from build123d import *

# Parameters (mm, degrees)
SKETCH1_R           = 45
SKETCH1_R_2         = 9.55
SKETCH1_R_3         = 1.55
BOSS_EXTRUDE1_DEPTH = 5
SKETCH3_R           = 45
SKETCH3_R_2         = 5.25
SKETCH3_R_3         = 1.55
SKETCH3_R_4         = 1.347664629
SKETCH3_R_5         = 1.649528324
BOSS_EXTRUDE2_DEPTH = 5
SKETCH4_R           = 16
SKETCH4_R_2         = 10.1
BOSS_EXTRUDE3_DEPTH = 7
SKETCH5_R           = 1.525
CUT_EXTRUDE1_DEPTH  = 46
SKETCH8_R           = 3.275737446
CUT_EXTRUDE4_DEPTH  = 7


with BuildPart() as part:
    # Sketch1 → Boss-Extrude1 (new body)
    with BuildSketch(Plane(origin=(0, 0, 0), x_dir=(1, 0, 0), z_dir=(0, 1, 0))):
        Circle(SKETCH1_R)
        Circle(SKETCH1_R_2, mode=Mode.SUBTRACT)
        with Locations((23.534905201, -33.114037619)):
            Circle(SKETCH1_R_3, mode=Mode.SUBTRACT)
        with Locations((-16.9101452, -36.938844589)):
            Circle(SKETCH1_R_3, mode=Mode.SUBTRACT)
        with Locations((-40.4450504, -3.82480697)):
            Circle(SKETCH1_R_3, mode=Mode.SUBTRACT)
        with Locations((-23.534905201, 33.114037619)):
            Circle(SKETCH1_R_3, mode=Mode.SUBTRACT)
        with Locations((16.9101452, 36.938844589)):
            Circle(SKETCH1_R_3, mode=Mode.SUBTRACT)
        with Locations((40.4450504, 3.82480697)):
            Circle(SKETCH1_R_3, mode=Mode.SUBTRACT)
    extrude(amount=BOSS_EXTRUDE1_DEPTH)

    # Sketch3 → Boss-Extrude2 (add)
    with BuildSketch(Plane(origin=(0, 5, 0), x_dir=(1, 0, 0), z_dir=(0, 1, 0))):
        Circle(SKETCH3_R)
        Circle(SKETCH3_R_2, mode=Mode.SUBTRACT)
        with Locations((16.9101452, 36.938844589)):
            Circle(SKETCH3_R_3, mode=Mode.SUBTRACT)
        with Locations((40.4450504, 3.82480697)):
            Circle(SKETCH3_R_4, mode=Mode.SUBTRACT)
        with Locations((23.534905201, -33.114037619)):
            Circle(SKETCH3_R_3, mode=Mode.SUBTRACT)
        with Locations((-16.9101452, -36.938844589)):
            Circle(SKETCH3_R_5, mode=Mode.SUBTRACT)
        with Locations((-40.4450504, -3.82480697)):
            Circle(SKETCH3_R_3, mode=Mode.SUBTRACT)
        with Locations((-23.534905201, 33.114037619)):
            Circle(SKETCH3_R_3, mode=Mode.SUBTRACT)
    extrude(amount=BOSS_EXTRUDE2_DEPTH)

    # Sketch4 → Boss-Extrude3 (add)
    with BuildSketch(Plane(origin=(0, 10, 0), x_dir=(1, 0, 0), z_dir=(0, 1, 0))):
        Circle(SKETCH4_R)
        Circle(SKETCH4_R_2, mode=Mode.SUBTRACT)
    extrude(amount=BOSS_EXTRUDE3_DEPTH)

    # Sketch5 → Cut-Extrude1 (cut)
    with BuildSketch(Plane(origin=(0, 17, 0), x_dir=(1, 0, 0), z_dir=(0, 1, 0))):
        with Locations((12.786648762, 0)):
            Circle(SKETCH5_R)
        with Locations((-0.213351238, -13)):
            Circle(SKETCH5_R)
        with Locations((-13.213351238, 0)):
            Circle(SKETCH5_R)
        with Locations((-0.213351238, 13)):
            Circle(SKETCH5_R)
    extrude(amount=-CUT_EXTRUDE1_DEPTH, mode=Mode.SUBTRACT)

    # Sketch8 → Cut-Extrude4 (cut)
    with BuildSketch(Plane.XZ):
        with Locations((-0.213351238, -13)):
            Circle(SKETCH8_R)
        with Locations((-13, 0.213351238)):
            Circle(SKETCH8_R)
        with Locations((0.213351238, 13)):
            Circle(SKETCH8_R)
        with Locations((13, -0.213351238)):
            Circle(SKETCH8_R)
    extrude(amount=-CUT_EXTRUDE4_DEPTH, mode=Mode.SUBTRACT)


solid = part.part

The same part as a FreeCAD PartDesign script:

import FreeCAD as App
import Part
import Sketcher

V = App.Vector

doc = App.newDocument("Part")
body = doc.addObject("PartDesign::Body", "Body")

# Sketch on XZ plane
sketch1 = doc.addObject("Sketcher::SketchObject", "Sketch")
body.addObject(sketch1)
sketch1.AttachmentSupport = (doc.XZ_Plane, [""])
sketch1.MapMode = "FlatFace"
sketch1.addGeometry([
    Part.Circle(V(0, 0, 0), V(0, 0, 1), 45),  # 0
    Part.Circle(V(-16.9, 36.9, 0), V(0, 0, 1), 1.6),  # 1
    Part.Circle(V(-40.4, 3.8, 0), V(0, 0, 1), 1.6),  # 2
    Part.Circle(V(23.5, 33.1, 0), V(0, 0, 1), 1.6),  # 3
    Part.Circle(V(-23.5, -33.1, 0), V(0, 0, 1), 1.6),  # 4
    Part.Circle(V(0, 0, 0), V(0, 0, 1), 9.6),  # 5
    Part.Circle(V(40.4, -3.8, 0), V(0, 0, 1), 1.6),  # 6
    Part.Circle(V(16.9, -36.9, 0), V(0, 0, 1), 1.6),  # 7
], False)
sketch1.addConstraint([
    Sketcher.Constraint("Coincident", 0, 3, -1, 1),
    Sketcher.Constraint("Coincident", 5, 3, -1, 1),
    Sketcher.Constraint("Equal", 1, 2),
    Sketcher.Constraint("Equal", 2, 3),
    Sketcher.Constraint("Equal", 3, 4),
    Sketcher.Constraint("Equal", 4, 6),
    Sketcher.Constraint("Equal", 6, 7),
    Sketcher.Constraint("Symmetric", 3, 3, 4, 3, -1, 1),
    Sketcher.Constraint("Symmetric", 2, 3, 6, 3, -1, 1),
    Sketcher.Constraint("Symmetric", 1, 3, 7, 3, -1, 1),
    Sketcher.Constraint("Diameter", 0, 90.0),
    Sketcher.Constraint("Diameter", 1, 3.1),
    Sketcher.Constraint("Diameter", 5, 19.1),
    Sketcher.Constraint("DistanceX", 2, 3, -1, 1, 40.44505),
    Sketcher.Constraint("DistanceX", 1, 3, 3, 3, 40.44505),
    Sketcher.Constraint("DistanceY", 2, 3, 3, 3, 29.289231),
    Sketcher.Constraint("DistanceX", 4, 3, 1, 3, 6.62476),
    Sketcher.Constraint("DistanceY", 6, 3, 1, 3, 40.763652),
    Sketcher.Constraint("DistanceY", -1, 1, 1, 3, 36.938845),
])
pad1 = doc.addObject("PartDesign::Pad", "Pad")
body.addObject(pad1)
pad1.Profile = sketch1
pad1.Length = 5
pad1.Reversed = True

# Sketch on XZ plane
sketch2 = doc.addObject("Sketcher::SketchObject", "Sketch001")
body.addObject(sketch2)
sketch2.AttachmentSupport = (doc.XZ_Plane, [""])
sketch2.MapMode = "FlatFace"
sketch2.AttachmentOffset = App.Placement(V(0, 0, -5), App.Rotation())
sketch2.addGeometry([
    Part.Circle(V(0, 0, 0), V(0, 0, 1), 45),  # 0
    Part.Circle(V(-16.9, 36.9, 0), V(0, 0, 1), 1.6),  # 1
    Part.Circle(V(-40.4, 3.8, 0), V(0, 0, 1), 1.6),  # 2
    Part.Circle(V(23.5, 33.1, 0), V(0, 0, 1), 1.6),  # 3
    Part.Circle(V(-23.5, -33.1, 0), V(0, 0, 1), 1.6),  # 4
    Part.Circle(V(0, 0, 0), V(0, 0, 1), 5.2),  # 5
    Part.Circle(V(40.4, -3.8, 0), V(0, 0, 1), 1.3),  # 6
    Part.Circle(V(16.9, -36.9, 0), V(0, 0, 1), 1.6),  # 7
], False)
sketch2.addConstraint([
    Sketcher.Constraint("Coincident", 0, 3, -1, 1),
    Sketcher.Constraint("Coincident", 5, 3, -1, 1),
    Sketcher.Constraint("Equal", 2, 3),
    Sketcher.Constraint("Equal", 3, 4),
    Sketcher.Constraint("Equal", 4, 7),
    Sketcher.Constraint("Symmetric", 3, 3, 4, 3, -1, 1),
    Sketcher.Constraint("Symmetric", 2, 3, 6, 3, -1, 1),
    Sketcher.Constraint("Symmetric", 1, 3, 7, 3, -1, 1),
    Sketcher.Constraint("Diameter", 0, 90.0),
    Sketcher.Constraint("Diameter", 2, 3.1),
    Sketcher.Constraint("Diameter", 5, 10.5),
    Sketcher.Constraint("Diameter", 6, 2.695329),
    Sketcher.Constraint("Diameter", 1, 3.299057),
    Sketcher.Constraint("DistanceX", 2, 3, -1, 1, 40.44505),
    Sketcher.Constraint("DistanceX", 1, 3, 3, 3, 40.44505),
    Sketcher.Constraint("DistanceY", 2, 3, 3, 3, 29.289231),
    Sketcher.Constraint("DistanceX", 4, 3, 1, 3, 6.62476),
    Sketcher.Constraint("DistanceY", 6, 3, 1, 3, 40.763652),
    Sketcher.Constraint("DistanceY", -1, 1, 1, 3, 36.938845),
])
pad2 = doc.addObject("PartDesign::Pad", "Pad001")
body.addObject(pad2)
pad2.Profile = sketch2
pad2.Length = 5
pad2.Reversed = True

# Sketch on XZ plane
sketch3 = doc.addObject("Sketcher::SketchObject", "Sketch002")
body.addObject(sketch3)
sketch3.AttachmentSupport = (doc.XZ_Plane, [""])
sketch3.MapMode = "FlatFace"
sketch3.AttachmentOffset = App.Placement(V(0, 0, -10), App.Rotation())
sketch3.addGeometry([
    Part.Circle(V(0, 0, 0), V(0, 0, 1), 16),
    Part.Circle(V(0, 0, 0), V(0, 0, 1), 10),
], False)
sketch3.addConstraint([
    Sketcher.Constraint("Coincident", 0, 3, -1, 1),
    Sketcher.Constraint("Coincident", 1, 3, -1, 1),
    Sketcher.Constraint("Diameter", 0, 32.0),
    Sketcher.Constraint("Diameter", 1, 20.2),
])
pad3 = doc.addObject("PartDesign::Pad", "Pad002")
body.addObject(pad3)
pad3.Profile = sketch3
pad3.Length = 7
pad3.Reversed = True

# Sketch on XZ plane
sketch4 = doc.addObject("Sketcher::SketchObject", "Sketch003")
body.addObject(sketch4)
sketch4.AttachmentSupport = (doc.XZ_Plane, [""])
sketch4.MapMode = "FlatFace"
sketch4.AttachmentOffset = App.Placement(V(0, 0, -17), App.Rotation())
sketch4.addGeometry([
    Part.Circle(V(12.8, 0, 0), V(0, 0, 1), 1.5),
    Part.Circle(V(-0.2, 13, 0), V(0, 0, 1), 1.5),
    Part.Circle(V(-13.2, 0, 0), V(0, 0, 1), 1.5),
    Part.Circle(V(-0.2, -13, 0), V(0, 0, 1), 1.5),
], False)
sketch4.addConstraint([
    Sketcher.Constraint("Equal", 0, 1),
    Sketcher.Constraint("Equal", 1, 2),
    Sketcher.Constraint("Equal", 2, 3),
    Sketcher.Constraint("Symmetric", 1, 3, 3, 3, -1),
    Sketcher.Constraint("PointOnObject", 0, 3, -1),
    Sketcher.Constraint("PointOnObject", 2, 3, -1),
    Sketcher.Constraint("Diameter", 0, 3.05),
    Sketcher.Constraint("DistanceY", -1, 1, 1, 3, 13.0),
    Sketcher.Constraint("DistanceX", 1, 3, 0, 3, 13.0),
    Sketcher.Constraint("DistanceX", 2, 3, 1, 3, 13.0),
    Sketcher.Constraint("DistanceX", -1, 1, 0, 3, 12.786649),
])
pocket1 = doc.addObject("PartDesign::Pocket", "Pocket")
body.addObject(pocket1)
pocket1.Profile = sketch4
pocket1.Length = 46
pocket1.Reversed = True

# Sketch on XZ plane
sketch5 = doc.addObject("Sketcher::SketchObject", "Sketch004")
body.addObject(sketch5)
sketch5.AttachmentSupport = (doc.XZ_Plane, [""])
sketch5.MapMode = "FlatFace"
sketch5.addGeometry([
    Part.Circle(V(-0.2, -13, 0), V(0, 0, 1), 3.3),
    Part.Circle(V(-13, 0.2, 0), V(0, 0, 1), 3.3),
    Part.Circle(V(0.2, 13, 0), V(0, 0, 1), 3.3),
    Part.Circle(V(13, -0.2, 0), V(0, 0, 1), 3.3),
], False)
sketch5.addConstraint([
    Sketcher.Constraint("Equal", 0, 1),
    Sketcher.Constraint("Equal", 1, 2),
    Sketcher.Constraint("Equal", 2, 3),
    Sketcher.Constraint("Symmetric", 0, 3, 2, 3, -1, 1),
    Sketcher.Constraint("Symmetric", 1, 3, 3, 3, -1, 1),
    Sketcher.Constraint("DistanceY", 0, 3, -1, 1, 13.0),
    Sketcher.Constraint("DistanceX", 1, 3, -1, 1, 13.0),
    Sketcher.Constraint("Diameter", 0, 6.551475),
    Sketcher.Constraint("DistanceX", 0, 3, -1, 1, 0.213351),
    Sketcher.Constraint("DistanceY", -1, 1, 1, 3, 0.213351),
])
pocket2 = doc.addObject("PartDesign::Pocket", "Pocket001")
body.addObject(pocket2)
pocket2.Profile = sketch5
pocket2.Length = 7

doc.recompute()
